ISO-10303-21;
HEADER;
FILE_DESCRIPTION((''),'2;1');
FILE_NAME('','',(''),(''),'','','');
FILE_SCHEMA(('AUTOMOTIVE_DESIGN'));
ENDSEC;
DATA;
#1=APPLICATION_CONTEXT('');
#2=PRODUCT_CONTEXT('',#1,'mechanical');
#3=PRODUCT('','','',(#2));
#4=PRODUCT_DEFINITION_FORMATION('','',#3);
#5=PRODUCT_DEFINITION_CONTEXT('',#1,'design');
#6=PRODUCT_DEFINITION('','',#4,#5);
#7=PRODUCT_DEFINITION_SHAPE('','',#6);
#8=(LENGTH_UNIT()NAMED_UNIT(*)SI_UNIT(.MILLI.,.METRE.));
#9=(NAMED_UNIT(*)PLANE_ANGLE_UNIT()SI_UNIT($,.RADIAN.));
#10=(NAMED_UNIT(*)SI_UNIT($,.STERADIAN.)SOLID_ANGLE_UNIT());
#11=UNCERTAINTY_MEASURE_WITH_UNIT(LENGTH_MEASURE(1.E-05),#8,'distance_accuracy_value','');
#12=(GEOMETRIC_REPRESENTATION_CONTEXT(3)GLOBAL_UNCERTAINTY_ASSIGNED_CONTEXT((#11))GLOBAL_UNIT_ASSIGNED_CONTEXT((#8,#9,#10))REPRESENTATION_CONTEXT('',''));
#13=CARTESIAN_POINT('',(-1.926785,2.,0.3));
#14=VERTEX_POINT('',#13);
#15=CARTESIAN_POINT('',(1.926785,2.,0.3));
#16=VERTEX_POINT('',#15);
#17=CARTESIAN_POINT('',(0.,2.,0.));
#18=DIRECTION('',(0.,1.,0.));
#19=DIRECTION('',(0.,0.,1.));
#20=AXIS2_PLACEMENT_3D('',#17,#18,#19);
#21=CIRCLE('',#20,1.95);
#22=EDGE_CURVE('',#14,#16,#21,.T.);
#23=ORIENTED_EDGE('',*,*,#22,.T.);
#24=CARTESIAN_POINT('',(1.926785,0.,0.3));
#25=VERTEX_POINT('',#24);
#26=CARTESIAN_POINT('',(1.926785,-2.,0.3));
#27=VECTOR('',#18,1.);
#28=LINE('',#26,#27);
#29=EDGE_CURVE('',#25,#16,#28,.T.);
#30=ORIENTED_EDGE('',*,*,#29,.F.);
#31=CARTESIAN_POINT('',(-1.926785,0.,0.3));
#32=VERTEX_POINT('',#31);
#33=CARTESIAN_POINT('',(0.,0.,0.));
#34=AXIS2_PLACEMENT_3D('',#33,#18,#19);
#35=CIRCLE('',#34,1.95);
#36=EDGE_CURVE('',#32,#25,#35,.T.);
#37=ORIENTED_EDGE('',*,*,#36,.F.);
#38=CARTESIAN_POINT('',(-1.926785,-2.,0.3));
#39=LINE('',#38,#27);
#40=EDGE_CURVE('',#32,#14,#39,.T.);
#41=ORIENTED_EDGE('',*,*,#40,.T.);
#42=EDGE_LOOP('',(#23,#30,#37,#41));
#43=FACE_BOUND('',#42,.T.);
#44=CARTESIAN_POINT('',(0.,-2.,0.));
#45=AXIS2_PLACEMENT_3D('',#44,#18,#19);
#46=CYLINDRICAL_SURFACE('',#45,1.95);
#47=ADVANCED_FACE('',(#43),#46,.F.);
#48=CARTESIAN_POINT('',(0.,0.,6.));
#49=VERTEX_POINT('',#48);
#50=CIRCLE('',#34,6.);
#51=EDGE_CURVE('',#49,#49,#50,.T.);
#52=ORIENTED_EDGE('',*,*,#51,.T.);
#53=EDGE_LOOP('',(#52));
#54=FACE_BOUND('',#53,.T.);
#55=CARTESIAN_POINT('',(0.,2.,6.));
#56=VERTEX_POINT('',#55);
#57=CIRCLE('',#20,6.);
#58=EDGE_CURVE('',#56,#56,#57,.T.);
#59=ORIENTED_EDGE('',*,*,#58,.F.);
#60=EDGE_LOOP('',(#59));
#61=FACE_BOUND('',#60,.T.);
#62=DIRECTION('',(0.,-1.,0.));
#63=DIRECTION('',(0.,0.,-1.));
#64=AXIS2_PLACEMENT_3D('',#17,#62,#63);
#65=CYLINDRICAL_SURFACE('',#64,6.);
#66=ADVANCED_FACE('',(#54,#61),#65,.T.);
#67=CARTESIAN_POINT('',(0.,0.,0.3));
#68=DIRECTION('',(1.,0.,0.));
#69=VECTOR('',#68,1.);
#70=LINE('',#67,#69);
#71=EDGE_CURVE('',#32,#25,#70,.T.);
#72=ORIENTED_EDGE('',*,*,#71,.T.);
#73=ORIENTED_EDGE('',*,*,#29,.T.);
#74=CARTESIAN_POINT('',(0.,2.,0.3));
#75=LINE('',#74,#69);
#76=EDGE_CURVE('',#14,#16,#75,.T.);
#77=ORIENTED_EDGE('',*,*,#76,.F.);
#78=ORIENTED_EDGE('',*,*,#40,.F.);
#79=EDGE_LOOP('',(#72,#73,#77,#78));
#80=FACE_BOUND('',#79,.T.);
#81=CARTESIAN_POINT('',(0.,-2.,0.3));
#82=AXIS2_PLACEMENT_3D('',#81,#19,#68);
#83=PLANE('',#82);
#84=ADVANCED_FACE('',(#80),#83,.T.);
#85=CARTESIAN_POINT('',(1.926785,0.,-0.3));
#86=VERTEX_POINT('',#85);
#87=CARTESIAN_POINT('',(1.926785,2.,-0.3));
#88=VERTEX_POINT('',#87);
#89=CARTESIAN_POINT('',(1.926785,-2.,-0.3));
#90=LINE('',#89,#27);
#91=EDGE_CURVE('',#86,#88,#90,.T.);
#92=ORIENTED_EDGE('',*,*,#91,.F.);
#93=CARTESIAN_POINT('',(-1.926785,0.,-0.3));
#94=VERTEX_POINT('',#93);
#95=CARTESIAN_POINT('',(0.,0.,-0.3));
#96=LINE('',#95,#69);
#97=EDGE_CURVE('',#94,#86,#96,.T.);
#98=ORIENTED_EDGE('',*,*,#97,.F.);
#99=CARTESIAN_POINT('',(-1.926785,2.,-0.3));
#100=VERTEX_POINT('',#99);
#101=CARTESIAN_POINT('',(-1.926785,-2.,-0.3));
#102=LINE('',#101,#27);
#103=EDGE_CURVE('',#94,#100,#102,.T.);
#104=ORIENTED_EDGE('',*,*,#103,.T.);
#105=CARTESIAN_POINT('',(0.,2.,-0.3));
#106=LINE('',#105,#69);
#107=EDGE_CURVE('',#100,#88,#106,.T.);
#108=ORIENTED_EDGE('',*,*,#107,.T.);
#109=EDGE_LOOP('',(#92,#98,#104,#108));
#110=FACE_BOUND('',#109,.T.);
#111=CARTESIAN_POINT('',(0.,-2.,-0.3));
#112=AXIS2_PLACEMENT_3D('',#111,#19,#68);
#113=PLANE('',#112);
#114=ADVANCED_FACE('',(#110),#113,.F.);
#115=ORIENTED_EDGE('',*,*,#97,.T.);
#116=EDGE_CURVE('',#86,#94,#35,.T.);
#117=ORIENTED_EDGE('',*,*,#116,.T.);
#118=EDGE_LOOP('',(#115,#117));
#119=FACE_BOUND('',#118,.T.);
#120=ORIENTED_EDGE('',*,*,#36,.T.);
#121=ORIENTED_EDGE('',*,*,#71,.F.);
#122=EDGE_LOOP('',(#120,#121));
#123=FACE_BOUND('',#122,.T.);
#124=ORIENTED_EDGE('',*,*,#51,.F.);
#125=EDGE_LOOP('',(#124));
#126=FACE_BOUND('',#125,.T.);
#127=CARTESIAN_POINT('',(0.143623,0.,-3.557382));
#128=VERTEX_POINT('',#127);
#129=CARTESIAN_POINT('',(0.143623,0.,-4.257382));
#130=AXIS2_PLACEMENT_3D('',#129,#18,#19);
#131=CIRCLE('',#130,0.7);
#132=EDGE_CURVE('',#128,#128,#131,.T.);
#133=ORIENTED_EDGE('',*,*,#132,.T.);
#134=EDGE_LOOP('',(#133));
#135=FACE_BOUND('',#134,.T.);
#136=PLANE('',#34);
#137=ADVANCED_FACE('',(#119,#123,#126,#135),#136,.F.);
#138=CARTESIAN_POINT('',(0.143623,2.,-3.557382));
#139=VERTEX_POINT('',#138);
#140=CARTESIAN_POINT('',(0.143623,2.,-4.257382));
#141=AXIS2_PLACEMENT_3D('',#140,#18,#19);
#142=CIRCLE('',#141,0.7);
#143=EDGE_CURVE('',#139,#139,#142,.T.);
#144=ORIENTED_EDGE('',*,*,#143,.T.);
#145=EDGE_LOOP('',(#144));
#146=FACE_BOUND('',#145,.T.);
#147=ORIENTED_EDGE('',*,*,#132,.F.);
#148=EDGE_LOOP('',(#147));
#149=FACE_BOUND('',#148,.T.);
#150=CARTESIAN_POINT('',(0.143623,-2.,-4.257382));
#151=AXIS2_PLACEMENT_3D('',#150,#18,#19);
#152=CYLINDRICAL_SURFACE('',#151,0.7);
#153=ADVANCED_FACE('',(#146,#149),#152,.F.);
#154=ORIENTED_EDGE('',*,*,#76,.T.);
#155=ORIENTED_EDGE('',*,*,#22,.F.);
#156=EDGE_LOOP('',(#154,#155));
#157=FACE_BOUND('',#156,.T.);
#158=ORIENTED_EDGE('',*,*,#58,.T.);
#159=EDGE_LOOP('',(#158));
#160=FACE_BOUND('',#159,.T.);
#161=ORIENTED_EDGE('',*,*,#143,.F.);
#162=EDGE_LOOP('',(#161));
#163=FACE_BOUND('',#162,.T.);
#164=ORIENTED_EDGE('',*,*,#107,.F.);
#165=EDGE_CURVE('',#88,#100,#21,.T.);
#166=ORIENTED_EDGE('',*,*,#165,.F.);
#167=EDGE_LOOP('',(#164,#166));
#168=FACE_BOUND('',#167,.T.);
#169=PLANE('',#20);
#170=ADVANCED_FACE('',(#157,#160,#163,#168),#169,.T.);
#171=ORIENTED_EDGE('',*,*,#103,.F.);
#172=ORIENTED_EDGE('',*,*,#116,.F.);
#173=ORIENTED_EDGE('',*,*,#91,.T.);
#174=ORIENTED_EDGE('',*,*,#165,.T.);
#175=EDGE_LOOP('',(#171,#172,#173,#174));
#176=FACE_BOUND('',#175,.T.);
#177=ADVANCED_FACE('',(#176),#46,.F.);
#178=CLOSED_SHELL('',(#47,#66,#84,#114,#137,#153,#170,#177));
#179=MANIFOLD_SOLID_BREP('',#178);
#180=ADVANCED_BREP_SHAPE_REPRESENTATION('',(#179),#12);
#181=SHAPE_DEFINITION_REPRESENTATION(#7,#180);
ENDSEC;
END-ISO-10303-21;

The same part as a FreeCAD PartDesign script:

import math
import FreeCAD as App
import Part
import Sketcher
from FreeCAD import Vector
Q = App.Units.Quantity

doc = App.newDocument("Part")
params = doc.addObject("Spreadsheet::Sheet", "Params")
for row, (alias, value) in enumerate([
    ("sketch1_diameter", "12 mm"),
    ("pad1_length", "2 mm"),
    ("sketch2_radius", "1.95 mm"),
    ("pocket1_length", "4 mm"),
    ("sketch3_diameter", "1.4 mm"),
    ("pocket2_length", "4 mm"),
], start=1):
    params.set(f"A{row}", alias)
    params.set(f"B{row}", "=" + value)
    params.setAlias(f"B{row}", alias)

body = doc.addObject("PartDesign::Body", "Body")

sketch1 = body.newObject("Sketcher::SketchObject", "Sketch")
sketch1.AttachmentSupport = (doc.getObject("XZ_Plane"), [""])
sketch1.MapMode = "FlatFace"
sketch1.addGeometry(Part.Circle(Vector(0, 0, 0), Vector(0, 0, 1), 6), False)
sketch1.addConstraint([
    Sketcher.Constraint("Coincident", 0, 3, -1, 1),
    Sketcher.Constraint("Diameter", 0, Q("12 mm")),
])
sketch1.setExpression("Constraints[1]", "Params.sketch1_diameter")
pad1 = body.newObject("PartDesign::Pad", "Pad")
pad1.Profile = sketch1
pad1.setExpression("Length", "Params.pad1_length")
pad1.Reversed = True

sketch2 = body.newObject("Sketcher::SketchObject", "Sketch001")
sketch2.AttachmentSupport = (doc.getObject("XZ_Plane"), [""])
sketch2.MapMode = "FlatFace"
sketch2.AttachmentOffset = App.Placement(Vector(0, 0, -2), App.Rotation())
sketch2.addGeometry([
    Part.LineSegment(Vector(-1.9, -0.3, 0), Vector(1.9, -0.3, 0)),
    Part.ArcOfCircle(Part.Circle(Vector(0, 0, 0), Vector(0, 0, 1), 1.9), math.radians(-171), math.radians(-9)),
    Part.LineSegment(Vector(1.9, 0.3, 0), Vector(-1.9, 0.3, 0)),
    Part.ArcOfCircle(Part.Circle(Vector(0, 0, 0), Vector(0, 0, 1), 1.9), math.radians(9), math.radians(171)),
], False)
sketch2.addConstraint([
    Sketcher.Constraint("Coincident", 0, 1, 1, 1),
    Sketcher.Constraint("Coincident", 1, 2, 0, 2),
    Sketcher.Constraint("Coincident", 2, 1, 3, 1),
    Sketcher.Constraint("Coincident", 3, 2, 2, 2),
    Sketcher.Constraint("Horizontal", 0),
    Sketcher.Constraint("Horizontal", 2),
    Sketcher.Constraint("Coincident", 1, 3, -1, 1),
    Sketcher.Constraint("Coincident", 3, 3, -1, 1),
    Sketcher.Constraint("Equal", 1, 3),
    Sketcher.Constraint("Vertical", 1, 2, 2, 1),
    Sketcher.Constraint("Radius", 1, Q("1.95 mm")),
    Sketcher.Constraint("DistanceY", 0, 1, -1, 1, Q("0.3 mm")),
])
sketch2.setExpression("Constraints[10]", "Params.sketch2_radius")
pocket1 = body.newObject("PartDesign::Pocket", "Pocket")
pocket1.Profile = sketch2
pocket1.setExpression("Length", "Params.pocket1_length")
pocket1.Reversed = True

sketch3 = body.newObject("Sketcher::SketchObject", "Sketch002")
sketch3.AttachmentSupport = (doc.getObject("XZ_Plane"), [""])
sketch3.MapMode = "FlatFace"
sketch3.AttachmentOffset = App.Placement(Vector(0, 0, -2), App.Rotation())
sketch3.addGeometry(Part.Circle(Vector(0.1, -4.3, 0), Vector(0, 0, 1), 0.7), False)
sketch3.addConstraint([
    Sketcher.Constraint("Diameter", 0, Q("1.4 mm")),
    Sketcher.Constraint("DistanceX", -1, 1, 0, 3, Q("0.143623 mm")),
    Sketcher.Constraint("DistanceY", 0, 3, -1, 1, Q("4.257382 mm")),
])
sketch3.setExpression("Constraints[0]", "Params.sketch3_diameter")
pocket2 = body.newObject("PartDesign::Pocket", "Pocket001")
pocket2.Profile = sketch3
pocket2.setExpression("Length", "Params.pocket2_length")
pocket2.Reversed = True

doc.recompute()
